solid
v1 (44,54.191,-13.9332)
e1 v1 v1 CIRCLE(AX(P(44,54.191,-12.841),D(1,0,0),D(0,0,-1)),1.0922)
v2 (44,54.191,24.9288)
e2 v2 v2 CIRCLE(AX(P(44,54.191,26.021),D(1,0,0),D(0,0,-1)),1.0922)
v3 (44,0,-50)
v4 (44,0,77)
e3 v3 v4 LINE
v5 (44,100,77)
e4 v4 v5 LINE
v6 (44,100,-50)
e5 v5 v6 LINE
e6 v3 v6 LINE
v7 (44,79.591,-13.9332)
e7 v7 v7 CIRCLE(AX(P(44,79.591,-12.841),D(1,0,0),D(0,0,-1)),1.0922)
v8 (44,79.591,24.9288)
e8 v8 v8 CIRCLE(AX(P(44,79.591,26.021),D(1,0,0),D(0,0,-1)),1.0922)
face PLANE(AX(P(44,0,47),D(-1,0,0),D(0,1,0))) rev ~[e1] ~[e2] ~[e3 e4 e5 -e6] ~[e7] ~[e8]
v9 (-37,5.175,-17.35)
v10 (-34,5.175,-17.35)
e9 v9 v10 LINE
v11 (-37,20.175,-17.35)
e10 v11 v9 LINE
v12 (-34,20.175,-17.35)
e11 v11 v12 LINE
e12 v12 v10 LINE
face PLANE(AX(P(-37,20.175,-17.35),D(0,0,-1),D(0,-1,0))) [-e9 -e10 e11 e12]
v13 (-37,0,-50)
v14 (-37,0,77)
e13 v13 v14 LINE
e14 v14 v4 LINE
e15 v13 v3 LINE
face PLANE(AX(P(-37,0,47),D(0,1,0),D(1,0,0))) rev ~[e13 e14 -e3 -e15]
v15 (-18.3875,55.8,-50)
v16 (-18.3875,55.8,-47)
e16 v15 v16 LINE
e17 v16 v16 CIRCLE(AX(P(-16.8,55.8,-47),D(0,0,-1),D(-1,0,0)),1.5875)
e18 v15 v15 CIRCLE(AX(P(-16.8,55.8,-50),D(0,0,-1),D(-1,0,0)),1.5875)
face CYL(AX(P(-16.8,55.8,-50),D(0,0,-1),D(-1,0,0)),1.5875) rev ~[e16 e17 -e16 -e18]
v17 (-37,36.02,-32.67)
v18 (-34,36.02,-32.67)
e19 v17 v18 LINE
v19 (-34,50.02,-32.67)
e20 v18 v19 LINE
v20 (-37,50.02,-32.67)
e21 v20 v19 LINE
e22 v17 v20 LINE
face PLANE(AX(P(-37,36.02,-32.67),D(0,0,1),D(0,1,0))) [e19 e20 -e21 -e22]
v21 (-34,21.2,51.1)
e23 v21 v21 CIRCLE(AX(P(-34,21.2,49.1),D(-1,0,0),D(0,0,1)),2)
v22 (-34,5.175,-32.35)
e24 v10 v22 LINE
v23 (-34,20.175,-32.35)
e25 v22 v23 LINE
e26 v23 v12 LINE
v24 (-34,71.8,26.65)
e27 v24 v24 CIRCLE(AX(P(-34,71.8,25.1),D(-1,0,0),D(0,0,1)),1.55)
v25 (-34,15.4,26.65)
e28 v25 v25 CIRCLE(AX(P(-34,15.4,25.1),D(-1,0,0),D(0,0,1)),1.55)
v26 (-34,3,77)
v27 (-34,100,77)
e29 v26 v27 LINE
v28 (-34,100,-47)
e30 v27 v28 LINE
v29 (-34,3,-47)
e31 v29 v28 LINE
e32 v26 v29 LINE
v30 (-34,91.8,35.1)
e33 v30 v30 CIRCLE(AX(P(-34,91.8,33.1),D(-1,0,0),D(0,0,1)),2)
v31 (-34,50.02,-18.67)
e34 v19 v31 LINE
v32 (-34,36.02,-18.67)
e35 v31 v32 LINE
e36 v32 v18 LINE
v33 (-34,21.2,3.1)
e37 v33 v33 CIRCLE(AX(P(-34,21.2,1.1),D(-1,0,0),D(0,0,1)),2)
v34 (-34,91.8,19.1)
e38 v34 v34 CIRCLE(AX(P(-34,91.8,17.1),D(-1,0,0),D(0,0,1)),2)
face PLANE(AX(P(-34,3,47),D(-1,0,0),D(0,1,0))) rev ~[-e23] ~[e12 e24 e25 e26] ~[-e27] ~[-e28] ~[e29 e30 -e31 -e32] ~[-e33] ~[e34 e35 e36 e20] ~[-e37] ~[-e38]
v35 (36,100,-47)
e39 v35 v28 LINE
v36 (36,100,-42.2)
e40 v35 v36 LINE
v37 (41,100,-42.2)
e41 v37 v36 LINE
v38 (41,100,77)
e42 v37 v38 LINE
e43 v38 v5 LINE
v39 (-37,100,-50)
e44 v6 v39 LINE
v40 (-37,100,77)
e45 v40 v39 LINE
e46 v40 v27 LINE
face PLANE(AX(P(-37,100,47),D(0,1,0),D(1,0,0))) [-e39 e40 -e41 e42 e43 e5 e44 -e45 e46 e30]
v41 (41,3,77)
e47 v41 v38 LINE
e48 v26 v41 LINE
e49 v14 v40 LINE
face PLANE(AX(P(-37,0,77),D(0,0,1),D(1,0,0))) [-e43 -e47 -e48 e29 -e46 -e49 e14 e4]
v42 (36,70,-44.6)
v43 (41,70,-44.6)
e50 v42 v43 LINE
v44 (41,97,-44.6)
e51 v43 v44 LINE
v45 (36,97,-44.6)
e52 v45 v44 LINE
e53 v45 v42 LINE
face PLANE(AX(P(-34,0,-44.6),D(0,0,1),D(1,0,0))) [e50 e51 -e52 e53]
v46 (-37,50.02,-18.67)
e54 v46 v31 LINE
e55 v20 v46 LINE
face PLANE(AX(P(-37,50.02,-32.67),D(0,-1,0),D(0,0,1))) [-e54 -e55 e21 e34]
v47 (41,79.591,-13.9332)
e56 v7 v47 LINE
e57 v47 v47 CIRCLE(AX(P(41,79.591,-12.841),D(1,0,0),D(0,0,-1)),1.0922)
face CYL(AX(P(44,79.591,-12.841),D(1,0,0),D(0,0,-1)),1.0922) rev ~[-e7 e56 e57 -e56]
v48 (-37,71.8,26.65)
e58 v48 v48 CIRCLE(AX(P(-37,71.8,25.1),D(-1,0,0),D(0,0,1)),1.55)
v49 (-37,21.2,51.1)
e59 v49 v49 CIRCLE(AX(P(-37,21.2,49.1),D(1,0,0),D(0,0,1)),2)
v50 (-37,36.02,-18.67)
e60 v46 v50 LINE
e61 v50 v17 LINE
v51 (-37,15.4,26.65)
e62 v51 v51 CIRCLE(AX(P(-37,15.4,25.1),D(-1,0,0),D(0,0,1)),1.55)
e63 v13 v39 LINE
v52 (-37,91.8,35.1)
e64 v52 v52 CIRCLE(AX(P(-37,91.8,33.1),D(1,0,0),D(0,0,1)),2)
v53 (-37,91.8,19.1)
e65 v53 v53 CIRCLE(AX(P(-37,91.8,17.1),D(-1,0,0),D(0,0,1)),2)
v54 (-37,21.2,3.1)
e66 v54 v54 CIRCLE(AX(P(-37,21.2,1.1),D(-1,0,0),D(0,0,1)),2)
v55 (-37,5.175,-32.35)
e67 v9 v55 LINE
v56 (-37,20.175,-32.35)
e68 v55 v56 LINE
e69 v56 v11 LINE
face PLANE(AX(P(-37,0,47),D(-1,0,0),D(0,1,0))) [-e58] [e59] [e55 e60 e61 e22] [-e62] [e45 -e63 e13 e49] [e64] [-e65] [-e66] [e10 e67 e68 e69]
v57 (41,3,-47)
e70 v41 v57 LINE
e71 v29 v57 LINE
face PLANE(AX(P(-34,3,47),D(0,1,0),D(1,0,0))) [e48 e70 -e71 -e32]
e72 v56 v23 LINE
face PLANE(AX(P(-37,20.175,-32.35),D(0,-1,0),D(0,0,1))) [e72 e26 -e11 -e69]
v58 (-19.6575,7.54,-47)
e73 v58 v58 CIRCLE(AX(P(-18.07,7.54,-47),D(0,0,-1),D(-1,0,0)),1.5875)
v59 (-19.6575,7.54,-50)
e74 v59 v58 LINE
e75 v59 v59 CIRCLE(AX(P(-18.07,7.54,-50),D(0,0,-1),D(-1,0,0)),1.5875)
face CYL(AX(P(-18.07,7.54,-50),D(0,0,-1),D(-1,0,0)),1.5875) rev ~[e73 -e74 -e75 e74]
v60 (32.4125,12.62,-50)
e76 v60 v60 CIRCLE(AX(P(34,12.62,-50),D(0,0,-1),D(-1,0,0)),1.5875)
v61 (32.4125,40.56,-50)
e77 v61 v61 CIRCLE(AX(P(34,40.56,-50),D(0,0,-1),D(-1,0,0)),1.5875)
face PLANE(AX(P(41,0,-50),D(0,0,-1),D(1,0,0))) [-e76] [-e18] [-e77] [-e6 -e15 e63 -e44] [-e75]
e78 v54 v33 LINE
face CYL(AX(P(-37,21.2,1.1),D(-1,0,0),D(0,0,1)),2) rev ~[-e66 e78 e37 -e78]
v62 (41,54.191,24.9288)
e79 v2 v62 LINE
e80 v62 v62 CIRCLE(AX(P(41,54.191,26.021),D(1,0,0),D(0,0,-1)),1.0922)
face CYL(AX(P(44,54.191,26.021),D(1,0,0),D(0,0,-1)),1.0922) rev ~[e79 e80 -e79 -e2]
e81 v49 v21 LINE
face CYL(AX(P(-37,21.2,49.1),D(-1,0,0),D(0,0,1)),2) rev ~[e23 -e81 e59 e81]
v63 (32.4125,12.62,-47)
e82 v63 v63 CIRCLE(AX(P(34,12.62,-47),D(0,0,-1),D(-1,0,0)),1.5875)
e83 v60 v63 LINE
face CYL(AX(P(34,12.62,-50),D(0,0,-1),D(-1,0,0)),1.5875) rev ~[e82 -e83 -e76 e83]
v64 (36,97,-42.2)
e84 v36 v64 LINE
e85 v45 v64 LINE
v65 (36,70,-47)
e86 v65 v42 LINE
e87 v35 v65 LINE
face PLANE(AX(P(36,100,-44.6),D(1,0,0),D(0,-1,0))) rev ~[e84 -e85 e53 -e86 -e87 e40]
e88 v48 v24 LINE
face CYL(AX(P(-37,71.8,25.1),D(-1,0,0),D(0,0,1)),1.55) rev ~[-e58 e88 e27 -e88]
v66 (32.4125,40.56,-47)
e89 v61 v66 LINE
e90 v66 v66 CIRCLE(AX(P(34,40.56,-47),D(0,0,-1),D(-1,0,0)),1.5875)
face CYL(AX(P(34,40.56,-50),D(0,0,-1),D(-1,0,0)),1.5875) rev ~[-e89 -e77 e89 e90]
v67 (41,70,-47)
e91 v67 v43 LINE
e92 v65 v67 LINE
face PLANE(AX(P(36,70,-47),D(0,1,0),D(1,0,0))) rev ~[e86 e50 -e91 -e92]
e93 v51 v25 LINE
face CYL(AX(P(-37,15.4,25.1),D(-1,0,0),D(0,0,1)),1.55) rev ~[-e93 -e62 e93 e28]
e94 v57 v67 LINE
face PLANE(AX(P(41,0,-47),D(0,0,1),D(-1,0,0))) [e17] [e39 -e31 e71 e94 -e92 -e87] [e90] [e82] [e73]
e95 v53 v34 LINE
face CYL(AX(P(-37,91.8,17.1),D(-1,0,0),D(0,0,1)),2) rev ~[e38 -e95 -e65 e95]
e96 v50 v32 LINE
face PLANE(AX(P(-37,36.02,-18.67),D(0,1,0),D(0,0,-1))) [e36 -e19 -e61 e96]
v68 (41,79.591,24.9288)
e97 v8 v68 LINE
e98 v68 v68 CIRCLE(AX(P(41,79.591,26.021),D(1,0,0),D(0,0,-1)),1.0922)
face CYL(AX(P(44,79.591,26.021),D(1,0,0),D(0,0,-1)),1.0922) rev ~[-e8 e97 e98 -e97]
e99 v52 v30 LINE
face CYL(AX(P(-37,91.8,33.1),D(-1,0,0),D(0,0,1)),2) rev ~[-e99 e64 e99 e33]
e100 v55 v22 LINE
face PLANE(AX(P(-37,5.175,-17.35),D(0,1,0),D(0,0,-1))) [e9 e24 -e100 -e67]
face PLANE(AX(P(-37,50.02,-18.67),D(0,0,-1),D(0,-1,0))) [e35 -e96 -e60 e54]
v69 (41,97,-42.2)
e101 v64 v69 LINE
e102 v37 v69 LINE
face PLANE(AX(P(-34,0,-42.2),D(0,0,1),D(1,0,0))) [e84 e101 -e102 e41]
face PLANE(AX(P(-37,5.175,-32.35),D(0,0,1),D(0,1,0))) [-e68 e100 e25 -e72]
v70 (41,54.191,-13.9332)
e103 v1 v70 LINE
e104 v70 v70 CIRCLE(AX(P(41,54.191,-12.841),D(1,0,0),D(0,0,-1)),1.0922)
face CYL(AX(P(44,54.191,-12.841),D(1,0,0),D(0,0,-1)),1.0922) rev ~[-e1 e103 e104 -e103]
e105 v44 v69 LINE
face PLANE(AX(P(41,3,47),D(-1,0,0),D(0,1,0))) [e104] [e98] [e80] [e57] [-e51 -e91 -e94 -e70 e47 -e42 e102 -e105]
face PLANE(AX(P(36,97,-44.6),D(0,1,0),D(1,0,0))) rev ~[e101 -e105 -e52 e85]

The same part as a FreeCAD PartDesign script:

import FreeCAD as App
import Part
import Sketcher

V = App.Vector
Q = App.Units.Quantity


def add_polygon(sketch, points):
    """Adds a closed chain of lines whose ends are joined by coincident constraints."""
    first, n = sketch.GeometryCount, len(points)
    for a, b in zip(points, points[1:] + points[:1]):
        sketch.addGeometry(Part.LineSegment(App.Vector(*a, 0), App.Vector(*b, 0)), False)
    for i in range(n):
        sketch.addConstraint(Sketcher.Constraint("Coincident", first + i, 2, first + (i + 1) % n, 1))

doc = App.newDocument("Part")
params = doc.addObject("Spreadsheet::Sheet", "Params")
for row, (alias, value) in enumerate([
    ("sketch1_width", "3 mm"),
    ("sketch1_width2", "81 mm"),
    ("sketch1_height", "97 mm"),
    ("pad1_length", "100 mm"),
    ("pocket1_length", "3 mm"),
    ("sketch3_width", "14 mm"),
    ("sketch3_width2", "15 mm"),
    ("pocket2_length", "3 mm"),
    ("pocket3_length", "3 mm"),
    ("sketch5_diameter", "3.1 mm"),
    ("pocket4_length", "3 mm"),
    ("sketch6_width", "5 mm"),
    ("sketch6_height", "30 mm"),
    ("pad2_length", "2.4 mm"),
    ("sketch7_height", "3 mm"),
    ("sketch7_width", "5 mm"),
    ("pad3_length", "2.4 mm"),
    ("sketch8_height", "3 mm"),
    ("sketch8_width", "75 mm"),
    ("pad4_length", "94 mm"),
    ("sketch9_width", "81 mm"),
    ("sketch9_width2", "3 mm"),
    ("sketch9_height", "100 mm"),
    ("sketch9_height2", "97 mm"),
    ("pad5_length", "30 mm"),
    ("sketch10_diameter", "4 mm"),
    ("pocket5_length", "3 mm"),
], start=1):
    params.set(f"A{row}", alias)
    params.set(f"B{row}", "=" + value)
    params.setAlias(f"B{row}", alias)

body = doc.addObject("PartDesign::Body", "Body")

sketch1 = body.newObject("Sketcher::SketchObject", "Sketch")
sketch1.AttachmentSupport = (doc.getObject("XZ_Plane"), [""])
sketch1.MapMode = "FlatFace"
add_polygon(sketch1, [(41, 47), (44, 47), (44, -50), (-37, -50), (-37, 47), (-34, 47), (-34, -47), (41, -47)])
sketch1.addConstraint(Sketcher.Constraint("Horizontal", 0))
sketch1.addConstraint(Sketcher.Constraint("Vertical", 1))
sketch1.addConstraint(Sketcher.Constraint("Horizontal", 2))
sketch1.addConstraint(Sketcher.Constraint("Vertical", 3))
sketch1.addConstraint(Sketcher.Constraint("Horizontal", 4))
sketch1.addConstraint(Sketcher.Constraint("Vertical", 5))
sketch1.addConstraint(Sketcher.Constraint("Horizontal", 6))
sketch1.addConstraint(Sketcher.Constraint("Vertical", 7))
sketch1.addConstraint(Sketcher.Constraint("Horizontal", 0, 2, 3, 2))
sketch1.addConstraint(Sketcher.Constraint("Equal", 0, 4))
sketch1.addConstraint(Sketcher.Constraint("DistanceX", 0, 1, 0, 2, Q("3 mm")))
sketch1.addConstraint(Sketcher.Constraint("DistanceY", 2, 2, 5, 2, Q("3 mm")))
sketch1.addConstraint(Sketcher.Constraint("DistanceX", 2, 2, 2, 1, Q("81 mm")))
sketch1.addConstraint(Sketcher.Constraint("DistanceY", 1, 2, 1, 1, Q("97 mm")))
sketch1.addConstraint(Sketcher.Constraint("DistanceX", -1, 1, 0, 2, Q("44 mm")))
sketch1.addConstraint(Sketcher.Constraint("DistanceY", -1, 1, 0, 2, Q("47 mm")))
sketch1.setExpression("Constraints[18]", "Params.sketch1_width")
sketch1.setExpression("Constraints[20]", "Params.sketch1_width2")
sketch1.setExpression("Constraints[21]", "Params.sketch1_height")
pad1 = body.newObject("PartDesign::Pad", "Pad")
pad1.Profile = sketch1
pad1.setExpression("Length", "Params.pad1_length")
pad1.Reversed = True

sketch2 = body.newObject("Sketcher::SketchObject", "Sketch001")
sketch2.AttachmentSupport = (doc.getObject("XY_Plane"), [""])
sketch2.MapMode = "FlatFace"
sketch2.AttachmentOffset = App.Placement(V(0, 0, -50), App.Rotation())
sketch2.addGeometry(Part.Circle(V(-18.1, 7.5, 0), V(0, 0, 1), 1.6), False)
sketch2.addGeometry(Part.Circle(V(34, 12.6, 0), V(0, 0, 1), 1.6), False)
sketch2.addGeometry(Part.Circle(V(34, 40.6, 0), V(0, 0, 1), 1.6), False)
sketch2.addGeometry(Part.Circle(V(-16.8, 55.8, 0), V(0, 0, 1), 1.6), False)
sketch2.addConstraint(Sketcher.Constraint("Equal", 0, 1))
sketch2.addConstraint(Sketcher.Constraint("Equal", 1, 2))
sketch2.addConstraint(Sketcher.Constraint("Equal", 2, 3))
sketch2.addConstraint(Sketcher.Constraint("Vertical", 1, 3, 2, 3))
sketch2.addConstraint(Sketcher.Constraint("Diameter", 0, Q("3.175 mm")))
sketch2.addConstraint(Sketcher.Constraint("DistanceX", -1, 1, 1, 3, Q("34 mm")))
sketch2.addConstraint(Sketcher.Constraint("DistanceX", 3, 3, -1, 1, Q("16.8 mm")))
sketch2.addConstraint(Sketcher.Constraint("DistanceY", -1, 1, 3, 3, Q("55.8 mm")))
sketch2.addConstraint(Sketcher.Constraint("DistanceX", 0, 3, -1, 1, Q("18.07 mm")))
sketch2.addConstraint(Sketcher.Constraint("DistanceY", -1, 1, 0, 3, Q("7.54 mm")))
sketch2.addConstraint(Sketcher.Constraint("DistanceY", -1, 1, 1, 3, Q("12.62 mm")))
sketch2.addConstraint(Sketcher.Constraint("DistanceY", -1, 1, 2, 3, Q("40.56 mm")))
pocket1 = body.newObject("PartDesign::Pocket", "Pocket")
pocket1.Profile = sketch2
pocket1.setExpression("Length", "Params.pocket1_length")
pocket1.Reversed = True

sketch3 = body.newObject("Sketcher::SketchObject", "Sketch002")
sketch3.AttachmentSupport = (doc.getObject("YZ_Plane"), [""])
sketch3.MapMode = "FlatFace"
sketch3.AttachmentOffset = App.Placement(V(0, 0, -37), App.Rotation())
add_polygon(sketch3, [(50, -19), (50, -33), (36, -33), (36, -19)])
add_polygon(sketch3, [(20, -17), (20, -32), (5, -32), (5, -17)])
sketch3.addConstraint(Sketcher.Constraint("Vertical", 0))
sketch3.addConstraint(Sketcher.Constraint("Horizontal", 1))
sketch3.addConstraint(Sketcher.Constraint("Vertical", 2))
sketch3.addConstraint(Sketcher.Constraint("Horizontal", 3))
sketch3.addConstraint(Sketcher.Constraint("Vertical", 4))
sketch3.addConstraint(Sketcher.Constraint("Horizontal", 5))
sketch3.addConstraint(Sketcher.Constraint("Vertical", 6))
sketch3.addConstraint(Sketcher.Constraint("Horizontal", 7))
sketch3.addConstraint(Sketcher.Constraint("Equal", 3, 0))
sketch3.addConstraint(Sketcher.Constraint("Equal", 7, 4))
sketch3.addConstraint(Sketcher.Constraint("DistanceX", 1, 2, 1, 1, Q("14 mm")))
sketch3.addConstraint(Sketcher.Constraint("DistanceX", 5, 2, 5, 1, Q("15 mm")))
sketch3.addConstraint(Sketcher.Constraint("DistanceX", -1, 1, 0, 2, Q("50.02 mm")))
sketch3.addConstraint(Sketcher.Constraint("DistanceY", 0, 2, -1, 1, Q("32.67 mm")))
sketch3.addConstraint(Sketcher.Constraint("DistanceY", 4, 2, -1, 1, Q("32.35 mm")))
sketch3.addConstraint(Sketcher.Constraint("DistanceX", -1, 1, 4, 2, Q("20.175 mm")))
sketch3.setExpression("Constraints[18]", "Params.sketch3_width")
sketch3.setExpression("Constraints[19]", "Params.sketch3_width2")
pocket2 = body.newObject("PartDesign::Pocket", "Pocket001")
pocket2.Profile = sketch3
pocket2.setExpression("Length", "Params.pocket2_length")
pocket2.Reversed = True

sketch4 = body.newObject("Sketcher::SketchObject", "Sketch003")
sketch4.AttachmentSupport = (doc.getObject("YZ_Plane"), [""])
sketch4.MapMode = "FlatFace"
sketch4.AttachmentOffset = App.Placement(V(0, 0, 44), App.Rotation())
sketch4.addGeometry(Part.Circle(V(79.6, 26, 0), V(0, 0, 1), 1.1), False)
sketch4.addGeometry(Part.Circle(V(79.6, -12.8, 0), V(0, 0, 1), 1.1), False)
sketch4.addGeometry(Part.Circle(V(54.2, -12.8, 0), V(0, 0, 1), 1.1), False)
sketch4.addGeometry(Part.Circle(V(54.2, 26, 0), V(0, 0, 1), 1.1), False)
sketch4.addConstraint(Sketcher.Constraint("Equal", 0, 1))
sketch4.addConstraint(Sketcher.Constraint("Equal", 1, 2))
sketch4.addConstraint(Sketcher.Constraint("Equal", 2, 3))
sketch4.addConstraint(Sketcher.Constraint("Horizontal", 1, 3, 2, 3))
sketch4.addConstraint(Sketcher.Constraint("Horizontal", 0, 3, 3, 3))
sketch4.addConstraint(Sketcher.Constraint("Vertical", 0, 3, 1, 3))
sketch4.addConstraint(Sketcher.Constraint("Vertical", 2, 3, 3, 3))
sketch4.addConstraint(Sketcher.Constraint("Diameter", 0, Q("2.1844 mm")))
sketch4.addConstraint(Sketcher.Constraint("DistanceX", 2, 3, 1, 3, Q("25.4 mm")))
sketch4.addConstraint(Sketcher.Constraint("DistanceX", -1, 1, 0, 3, Q("79.591 mm")))
sketch4.addConstraint(Sketcher.Constraint("DistanceY", -1, 1, 0, 3, Q("26.021 mm")))
sketch4.addConstraint(Sketcher.Constraint("DistanceY", 1, 3, -1, 1, Q("12.841 mm")))
pocket3 = body.newObject("PartDesign::Pocket", "Pocket002")
pocket3.Profile = sketch4
pocket3.setExpression("Length", "Params.pocket3_length")

sketch5 = body.newObject("Sketcher::SketchObject", "Sketch004")
sketch5.AttachmentSupport = (doc.getObject("YZ_Plane"), [""])
sketch5.MapMode = "FlatFace"
sketch5.AttachmentOffset = App.Placement(V(0, 0, -37), App.Rotation())
sketch5.addGeometry(Part.Circle(V(71.8, 25.1, 0), V(0, 0, 1), 1.6), False)
sketch5.addGeometry(Part.Circle(V(15.4, 25.1, 0), V(0, 0, 1), 1.6), False)
sketch5.addConstraint(Sketcher.Constraint("Equal", 0, 1))
sketch5.addConstraint(Sketcher.Constraint("Horizontal", 0, 3, 1, 3))
sketch5.addConstraint(Sketcher.Constraint("Diameter", 0, Q("3.1 mm")))
sketch5.addConstraint(Sketcher.Constraint("DistanceX", -1, 1, 0, 3, Q("71.8 mm")))
sketch5.addConstraint(Sketcher.Constraint("DistanceY", -1, 1, 0, 3, Q("25.1 mm")))
sketch5.addConstraint(Sketcher.Constraint("DistanceX", -1, 1, 1, 3, Q("15.4 mm")))
sketch5.setExpression("Constraints[2]", "Params.sketch5_diameter")
pocket4 = body.newObject("PartDesign::Pocket", "Pocket003")
pocket4.Profile = sketch5
pocket4.setExpression("Length", "Params.pocket4_length")
pocket4.Reversed = True

sketch6 = body.newObject("Sketcher::SketchObject", "Sketch005")
sketch6.AttachmentSupport = (doc.getObject("XY_Plane"), [""])
sketch6.MapMode = "FlatFace"
sketch6.AttachmentOffset = App.Placement(V(0, 0, -47), App.Rotation())
add_polygon(sketch6, [(36, 70), (41, 70), (41, 100), (36, 100)])
sketch6.addConstraint(Sketcher.Constraint("Horizontal", 0))
sketch6.addConstraint(Sketcher.Constraint("Vertical", 1))
sketch6.addConstraint(Sketcher.Constraint("Horizontal", 2))
sketch6.addConstraint(Sketcher.Constraint("Vertical", 3))
sketch6.addConstraint(Sketcher.Constraint("DistanceX", 0, 1, 0, 2, Q("5 mm")))
sketch6.addConstraint(Sketcher.Constraint("DistanceY", 1, 1, 1, 2, Q("30 mm")))
sketch6.addConstraint(Sketcher.Constraint("DistanceX", -1, 1, 0, 2, Q("41 mm")))
sketch6.addConstraint(Sketcher.Constraint("DistanceY", -1, 1, 0, 2, Q("70 mm")))
sketch6.setExpression("Constraints[8]", "Params.sketch6_width")
sketch6.setExpression("Constraints[9]", "Params.sketch6_height")
pad2 = body.newObject("PartDesign::Pad", "Pad001")
pad2.Profile = sketch6
pad2.setExpression("Length", "Params.pad2_length")

sketch7 = body.newObject("Sketcher::SketchObject", "Sketch006")
sketch7.AttachmentSupport = (doc.getObject("XY_Plane"), [""])
sketch7.MapMode = "FlatFace"
sketch7.AttachmentOffset = App.Placement(V(0, 0, -44.6), App.Rotation())
add_polygon(sketch7, [(41, 100), (36, 100), (36, 97), (41, 97)])
sketch7.addConstraint(Sketcher.Constraint("Horizontal", 0))
sketch7.addConstraint(Sketcher.Constraint("Vertical", 1))
sketch7.addConstraint(Sketcher.Constraint("Horizontal", 2))
sketch7.addConstraint(Sketcher.Constraint("Vertical", 3))
sketch7.addConstraint(Sketcher.Constraint("DistanceY", 1, 2, 1, 1, Q("3 mm")))
sketch7.addConstraint(Sketcher.Constraint("DistanceX", 0, 2, 0, 1, Q("5 mm")))
sketch7.addConstraint(Sketcher.Constraint("DistanceX", -1, 1, 0, 2, Q("36 mm")))
sketch7.addConstraint(Sketcher.Constraint("DistanceY", -1, 1, 0, 2, Q("100 mm")))
sketch7.setExpression("Constraints[8]", "Params.sketch7_height")
sketch7.setExpression("Constraints[9]", "Params.sketch7_width")
pad3 = body.newObject("PartDesign::Pad", "Pad002")
pad3.Profile = sketch7
pad3.setExpression("Length", "Params.pad3_length")

sketch8 = body.newObject("Sketcher::SketchObject", "Sketch007")
sketch8.AttachmentSupport = (doc.getObject("XY_Plane"), [""])
sketch8.MapMode = "FlatFace"
sketch8.AttachmentOffset = App.Placement(V(0, 0, -47), App.Rotation())
add_polygon(sketch8, [(-34, 0), (41, 0), (41, 3), (-34, 3)])
sketch8.addConstraint(Sketcher.Constraint("Horizontal", 0))
sketch8.addConstraint(Sketcher.Constraint("Vertical", 1))
sketch8.addConstraint(Sketcher.Constraint("Horizontal", 2))
sketch8.addConstraint(Sketcher.Constraint("Vertical", 3))
sketch8.addConstraint(Sketcher.Constraint("PointOnObject", 0, 2, -1))
sketch8.addConstraint(Sketcher.Constraint("DistanceY", 1, 1, 1, 2, Q("3 mm")))
sketch8.addConstraint(Sketcher.Constraint("DistanceX", 0, 1, 0, 2, Q("75 mm")))
sketch8.addConstraint(Sketcher.Constraint("DistanceX", -1, 1, 0, 2, Q("41 mm")))
sketch8.setExpression("Constraints[9]", "Params.sketch8_height")
sketch8.setExpression("Constraints[10]", "Params.sketch8_width")
pad4 = body.newObject("PartDesign::Pad", "Pad003")
pad4.Profile = sketch8
pad4.setExpression("Length", "Params.pad4_length")

sketch9 = body.newObject("Sketcher::SketchObject", "Sketch008")
sketch9.AttachmentSupport = (doc.getObject("XY_Plane"), [""])
sketch9.MapMode = "FlatFace"
sketch9.AttachmentOffset = App.Placement(V(0, 0, 47), App.Rotation())
add_polygon(sketch9, [(-37, 100), (-37, 0), (44, 0), (44, 100), (41, 100), (41, 3), (-34, 3), (-34, 100)])
sketch9.addConstraint(Sketcher.Constraint("Vertical", 0))
sketch9.addConstraint(Sketcher.Constraint("Horizontal", 1))
sketch9.addConstraint(Sketcher.Constraint("Vertical", 2))
sketch9.addConstraint(Sketcher.Constraint("Horizontal", 3))
sketch9.addConstraint(Sketcher.Constraint("Vertical", 4))
sketch9.addConstraint(Sketcher.Constraint("Horizontal", 5))
sketch9.addConstraint(Sketcher.Constraint("Vertical", 6))
sketch9.addConstraint(Sketcher.Constraint("Horizontal", 7))
sketch9.addConstraint(Sketcher.Constraint("PointOnObject", 0, 2, -1))
sketch9.addConstraint(Sketcher.Constraint("Horizontal", 3, 2, 6, 2))
sketch9.addConstraint(Sketcher.Constraint("Equal", 3, 7))
sketch9.addConstraint(Sketcher.Constraint("DistanceX", 1, 1, 1, 2, Q("81 mm")))
sketch9.addConstraint(Sketcher.Constraint("DistanceX", 3, 2, 3, 1, Q("3 mm")))
sketch9.addConstraint(Sketcher.Constraint("DistanceY", 0, 2, 0, 1, Q("100 mm")))
sketch9.addConstraint(Sketcher.Constraint("DistanceY", 4, 2, 4, 1, Q("97 mm")))
sketch9.addConstraint(Sketcher.Constraint("DistanceX", 0, 2, -1, 1, Q("37 mm")))
sketch9.setExpression("Constraints[19]", "Params.sketch9_width")
sketch9.setExpression("Constraints[20]", "Params.sketch9_width2")
sketch9.setExpression("Constraints[21]", "Params.sketch9_height")
sketch9.setExpression("Constraints[22]", "Params.sketch9_height2")
pad5 = body.newObject("PartDesign::Pad", "Pad004")
pad5.Profile = sketch9
pad5.setExpression("Length", "Params.pad5_length")

sketch10 = body.newObject("Sketcher::SketchObject", "Sketch009")
sketch10.AttachmentSupport = (doc.getObject("YZ_Plane"), [""])
sketch10.MapMode = "FlatFace"
sketch10.AttachmentOffset = App.Placement(V(0, 0, -37), App.Rotation())
sketch10.addGeometry(Part.Circle(V(91.8, 17.1, 0), V(0, 0, 1), 2), False)
sketch10.addGeometry(Part.Circle(V(91.8, 33.1, 0), V(0, 0, 1), 2), False)
sketch10.addGeometry(Part.Circle(V(21.2, 1.1, 0), V(0, 0, 1), 2), False)
sketch10.addGeometry(Part.Circle(V(21.2, 49.1, 0), V(0, 0, 1), 2), False)
sketch10.addConstraint(Sketcher.Constraint("Equal", 0, 1))
sketch10.addConstraint(Sketcher.Constraint("Equal", 1, 2))
sketch10.addConstraint(Sketcher.Constraint("Equal", 2, 3))
sketch10.addConstraint(Sketcher.Constraint("Vertical", 0, 3, 1, 3))
sketch10.addConstraint(Sketcher.Constraint("Vertical", 2, 3, 3, 3))
sketch10.addConstraint(Sketcher.Constraint("Diameter", 0, Q("4 mm")))
sketch10.addConstraint(Sketcher.Constraint("DistanceY", 2, 3, 3, 3, Q("48 mm")))
sketch10.addConstraint(Sketcher.Constraint("DistanceY", 0, 3, 1, 3, Q("16 mm")))
sketch10.addConstraint(Sketcher.Constraint("DistanceY", 2, 3, 0, 3, Q("16 mm")))
sketch10.addConstraint(Sketcher.Constraint("DistanceX", -1, 1, 0, 3, Q("91.8 mm")))
sketch10.addConstraint(Sketcher.Constraint("DistanceY", -1, 1, 0, 3, Q("17.1 mm")))
sketch10.addConstraint(Sketcher.Constraint("DistanceX", -1, 1, 2, 3, Q("21.2 mm")))
sketch10.setExpression("Constraints[5]", "Params.sketch10_diameter")
pocket5 = body.newObject("PartDesign::Pocket", "Pocket004")
pocket5.Profile = sketch10
pocket5.setExpression("Length", "Params.pocket5_length")
pocket5.Reversed = True

doc.recompute()
